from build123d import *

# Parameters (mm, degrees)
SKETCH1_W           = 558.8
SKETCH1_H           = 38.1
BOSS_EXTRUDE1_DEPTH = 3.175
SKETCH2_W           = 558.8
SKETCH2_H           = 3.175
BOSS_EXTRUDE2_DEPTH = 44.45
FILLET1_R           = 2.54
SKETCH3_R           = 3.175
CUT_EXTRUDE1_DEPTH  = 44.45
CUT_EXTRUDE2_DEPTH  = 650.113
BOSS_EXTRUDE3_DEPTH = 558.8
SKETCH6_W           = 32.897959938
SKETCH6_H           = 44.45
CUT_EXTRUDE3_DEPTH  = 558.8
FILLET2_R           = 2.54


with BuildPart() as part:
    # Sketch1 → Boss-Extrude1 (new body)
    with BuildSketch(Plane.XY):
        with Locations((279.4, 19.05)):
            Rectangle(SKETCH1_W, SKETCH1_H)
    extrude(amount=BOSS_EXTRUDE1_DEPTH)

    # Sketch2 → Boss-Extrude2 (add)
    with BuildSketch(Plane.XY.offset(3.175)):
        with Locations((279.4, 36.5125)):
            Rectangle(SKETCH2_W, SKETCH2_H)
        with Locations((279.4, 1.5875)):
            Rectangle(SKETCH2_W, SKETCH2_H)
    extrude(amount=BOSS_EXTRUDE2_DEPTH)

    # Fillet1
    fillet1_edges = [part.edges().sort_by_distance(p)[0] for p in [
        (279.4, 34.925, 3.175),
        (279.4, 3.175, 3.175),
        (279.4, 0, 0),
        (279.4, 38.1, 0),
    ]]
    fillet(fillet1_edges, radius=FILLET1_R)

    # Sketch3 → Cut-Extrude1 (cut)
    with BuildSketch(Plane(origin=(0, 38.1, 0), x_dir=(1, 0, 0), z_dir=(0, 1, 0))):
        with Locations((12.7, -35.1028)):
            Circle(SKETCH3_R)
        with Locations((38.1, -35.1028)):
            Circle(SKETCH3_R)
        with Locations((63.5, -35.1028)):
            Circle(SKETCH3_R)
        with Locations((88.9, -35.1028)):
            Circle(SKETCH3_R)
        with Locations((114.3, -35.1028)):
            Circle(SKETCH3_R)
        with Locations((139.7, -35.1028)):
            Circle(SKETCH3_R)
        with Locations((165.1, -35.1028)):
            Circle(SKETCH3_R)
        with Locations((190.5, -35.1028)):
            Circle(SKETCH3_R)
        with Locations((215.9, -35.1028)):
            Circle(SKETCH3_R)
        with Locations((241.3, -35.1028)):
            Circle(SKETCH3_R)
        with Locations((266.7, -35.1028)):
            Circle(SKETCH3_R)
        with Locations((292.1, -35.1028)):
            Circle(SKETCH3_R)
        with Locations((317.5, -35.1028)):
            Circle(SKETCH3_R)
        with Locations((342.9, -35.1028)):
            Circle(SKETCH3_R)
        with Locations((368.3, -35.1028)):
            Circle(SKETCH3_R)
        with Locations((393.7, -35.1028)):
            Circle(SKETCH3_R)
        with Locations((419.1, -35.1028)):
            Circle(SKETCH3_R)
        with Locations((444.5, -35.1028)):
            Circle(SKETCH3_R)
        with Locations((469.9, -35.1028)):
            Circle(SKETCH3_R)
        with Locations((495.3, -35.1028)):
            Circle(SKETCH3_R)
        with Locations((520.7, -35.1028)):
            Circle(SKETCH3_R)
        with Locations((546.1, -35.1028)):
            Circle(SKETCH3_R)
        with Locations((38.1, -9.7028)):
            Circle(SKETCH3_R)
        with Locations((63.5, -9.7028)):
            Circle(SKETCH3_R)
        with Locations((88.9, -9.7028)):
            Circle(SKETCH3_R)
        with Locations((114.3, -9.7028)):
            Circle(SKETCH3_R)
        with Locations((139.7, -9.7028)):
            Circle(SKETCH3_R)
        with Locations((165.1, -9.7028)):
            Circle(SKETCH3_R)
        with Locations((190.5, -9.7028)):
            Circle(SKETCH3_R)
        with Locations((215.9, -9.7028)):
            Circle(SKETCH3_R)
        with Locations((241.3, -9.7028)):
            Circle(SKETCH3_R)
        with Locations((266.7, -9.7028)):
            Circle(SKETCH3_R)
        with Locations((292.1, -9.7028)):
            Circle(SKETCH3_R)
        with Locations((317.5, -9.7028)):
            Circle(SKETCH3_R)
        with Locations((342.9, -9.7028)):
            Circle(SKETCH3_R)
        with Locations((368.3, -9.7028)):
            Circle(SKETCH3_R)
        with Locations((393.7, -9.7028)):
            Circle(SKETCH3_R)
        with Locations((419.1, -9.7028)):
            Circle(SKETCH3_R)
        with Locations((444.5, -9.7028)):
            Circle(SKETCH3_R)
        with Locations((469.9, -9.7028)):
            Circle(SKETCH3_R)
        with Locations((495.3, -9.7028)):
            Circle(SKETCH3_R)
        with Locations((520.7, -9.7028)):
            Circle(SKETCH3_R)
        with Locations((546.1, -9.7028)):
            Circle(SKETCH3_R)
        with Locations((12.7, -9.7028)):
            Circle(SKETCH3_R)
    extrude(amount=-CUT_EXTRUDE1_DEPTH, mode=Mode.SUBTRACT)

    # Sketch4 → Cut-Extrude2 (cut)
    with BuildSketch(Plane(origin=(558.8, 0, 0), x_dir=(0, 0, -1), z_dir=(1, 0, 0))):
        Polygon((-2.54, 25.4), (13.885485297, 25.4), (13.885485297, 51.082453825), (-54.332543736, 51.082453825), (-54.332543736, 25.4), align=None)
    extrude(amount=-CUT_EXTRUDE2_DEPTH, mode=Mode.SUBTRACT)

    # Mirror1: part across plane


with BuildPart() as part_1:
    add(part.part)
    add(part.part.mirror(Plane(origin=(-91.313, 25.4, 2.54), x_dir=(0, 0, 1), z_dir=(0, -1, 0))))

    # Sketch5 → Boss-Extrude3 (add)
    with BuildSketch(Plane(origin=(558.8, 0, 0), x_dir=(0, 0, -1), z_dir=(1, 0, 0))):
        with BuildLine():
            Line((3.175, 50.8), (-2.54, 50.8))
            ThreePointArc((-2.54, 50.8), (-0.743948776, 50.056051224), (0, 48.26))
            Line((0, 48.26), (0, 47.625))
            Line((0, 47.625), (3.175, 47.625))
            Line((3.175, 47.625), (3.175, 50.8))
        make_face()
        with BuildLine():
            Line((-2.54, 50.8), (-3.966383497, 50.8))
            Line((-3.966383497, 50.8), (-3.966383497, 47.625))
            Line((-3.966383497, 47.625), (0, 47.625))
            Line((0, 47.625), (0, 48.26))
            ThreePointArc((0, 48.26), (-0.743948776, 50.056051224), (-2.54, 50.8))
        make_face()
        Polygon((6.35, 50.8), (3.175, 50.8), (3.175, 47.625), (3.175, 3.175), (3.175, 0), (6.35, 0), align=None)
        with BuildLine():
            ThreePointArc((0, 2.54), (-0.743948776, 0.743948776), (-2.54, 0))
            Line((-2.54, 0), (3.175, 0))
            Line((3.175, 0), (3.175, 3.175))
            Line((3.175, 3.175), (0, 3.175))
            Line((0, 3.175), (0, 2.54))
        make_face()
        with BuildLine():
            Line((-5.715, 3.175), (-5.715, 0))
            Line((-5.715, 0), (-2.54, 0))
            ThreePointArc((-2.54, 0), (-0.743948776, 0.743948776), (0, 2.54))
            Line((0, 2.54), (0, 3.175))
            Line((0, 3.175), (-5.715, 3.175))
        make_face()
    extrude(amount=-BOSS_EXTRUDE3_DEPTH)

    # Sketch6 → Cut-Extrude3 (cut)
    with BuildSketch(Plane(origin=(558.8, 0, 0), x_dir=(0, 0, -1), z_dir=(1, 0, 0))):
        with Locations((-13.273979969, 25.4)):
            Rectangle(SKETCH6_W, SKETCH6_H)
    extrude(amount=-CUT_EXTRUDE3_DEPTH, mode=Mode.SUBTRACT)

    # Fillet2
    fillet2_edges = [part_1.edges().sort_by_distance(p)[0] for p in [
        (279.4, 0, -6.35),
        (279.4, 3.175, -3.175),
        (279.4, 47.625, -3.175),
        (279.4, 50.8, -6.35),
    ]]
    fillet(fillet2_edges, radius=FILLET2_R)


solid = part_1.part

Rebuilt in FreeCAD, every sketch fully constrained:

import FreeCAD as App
import Part
import Sketcher
Q = App.Units.Quantity


def edges_at(feature, points):
    """Names of the edges that pass closest to the given points."""
    edges = feature.Shape.Edges
    near = lambda p: min(range(len(edges)), key=lambda i: edges[i].distToShape(Part.Vertex(*p))[0])
    return sorted({f"Edge{near(p) + 1}" for p in points})

doc = App.newDocument("Part")
body = doc.addObject("PartDesign::Body", "Body")

sketch1 = body.newObject("Sketcher::SketchObject", "Sketch")
sketch1.AttachmentSupport = (doc.getObject("XY_Plane"), [""])
sketch1.MapMode = "FlatFace"
sketch1.addGeometry([
    Part.LineSegment(App.Vector(0, 38, 0), App.Vector(0, 0, 0)),
    Part.LineSegment(App.Vector(0, 0, 0), App.Vector(559, 0, 0)),
    Part.LineSegment(App.Vector(559, 0, 0), App.Vector(559, 38, 0)),
    Part.LineSegment(App.Vector(559, 38, 0), App.Vector(0, 38, 0)),
], False)
sketch1.addConstraint([
    Sketcher.Constraint("Coincident", 0, 2, 1, 1),
    Sketcher.Constraint("Coincident", 1, 2, 2, 1),
    Sketcher.Constraint("Coincident", 2, 2, 3, 1),
    Sketcher.Constraint("Coincident", 3, 2, 0, 1),
    Sketcher.Constraint("Vertical", 0),
    Sketcher.Constraint("Horizontal", 1),
    Sketcher.Constraint("Vertical", 2),
    Sketcher.Constraint("Horizontal", 3),
    Sketcher.Constraint("Coincident", 0, 2, -1, 1),
    Sketcher.Constraint("DistanceX", 1, 1, 1, 2, Q("22 in")),
    Sketcher.Constraint("DistanceY", 0, 2, 0, 1, Q("1.5 in")),
])
pad1 = body.newObject("PartDesign::Pad", "Pad")
pad1.Profile = sketch1
pad1.Length = Q("0.125 in")

sketch2 = body.newObject("Sketcher::SketchObject", "Sketch001")
sketch2.AttachmentSupport = (doc.getObject("XY_Plane"), [""])
sketch2.MapMode = "FlatFace"
sketch2.AttachmentOffset = App.Placement(App.Vector(0, 0, 0.125 * 25.4), App.Rotation())
sketch2.addGeometry([
    Part.LineSegment(App.Vector(0, 38.1, 0), App.Vector(0, 34.9, 0)),
    Part.LineSegment(App.Vector(0, 34.9, 0), App.Vector(558.8, 34.9, 0)),
    Part.LineSegment(App.Vector(558.8, 34.9, 0), App.Vector(558.8, 38.1, 0)),
    Part.LineSegment(App.Vector(558.8, 38.1, 0), App.Vector(0, 38.1, 0)),
    Part.LineSegment(App.Vector(0, 3.2, 0), App.Vector(0, 0, 0)),
    Part.LineSegment(App.Vector(0, 0, 0), App.Vector(558.8, 0, 0)),
    Part.LineSegment(App.Vector(558.8, 0, 0), App.Vector(558.8, 3.2, 0)),
    Part.LineSegment(App.Vector(558.8, 3.2, 0), App.Vector(0, 3.2, 0)),
], False)
sketch2.addConstraint([
    Sketcher.Constraint("Coincident", 0, 2, 1, 1),
    Sketcher.Constraint("Coincident", 1, 2, 2, 1),
    Sketcher.Constraint("Coincident", 2, 2, 3, 1),
    Sketcher.Constraint("Coincident", 3, 2, 0, 1),
    Sketcher.Constraint("Coincident", 4, 2, 5, 1),
    Sketcher.Constraint("Coincident", 5, 2, 6, 1),
    Sketcher.Constraint("Coincident", 6, 2, 7, 1),
    Sketcher.Constraint("Coincident", 7, 2, 4, 1),
    Sketcher.Constraint("Vertical", 0),
    Sketcher.Constraint("Horizontal", 1),
    Sketcher.Constraint("Vertical", 2),
    Sketcher.Constraint("Horizontal", 3),
    Sketcher.Constraint("Vertical", 4),
    Sketcher.Constraint("Horizontal", 5),
    Sketcher.Constraint("Vertical", 6),
    Sketcher.Constraint("Horizontal", 7),
    Sketcher.Constraint("Coincident", 4, 2, -1, 1),
    Sketcher.Constraint("PointOnObject", 0, 2, -2),
    Sketcher.Constraint("Vertical", 2, 2, 5, 2),
    Sketcher.Constraint("Equal", 2, 4),
    Sketcher.Constraint("DistanceX", 1, 1, 1, 2, Q("22 in")),
    Sketcher.Constraint("DistanceY", -1, 1, 2, 2, Q("1.5 in")),
    Sketcher.Constraint("DistanceY", 0, 2, 0, 1, Q("0.125 in")),
])
pad2 = body.newObject("PartDesign::Pad", "Pad001")
pad2.Profile = sketch2
pad2.Length = Q("1.75 in")
doc.recompute()

fillet = body.newObject("PartDesign::Fillet", "Fillet")
fillet.Base = (pad2, edges_at(pad2, [
    (279.4, 34.925, 3.175),
    (279.4, 3.175, 3.175),
    (279.4, 0, 0),
    (279.4, 38.1, 0),
]))
fillet.Radius = Q("0.1 in")

sketch3 = body.newObject("Sketcher::SketchObject", "Sketch002")
sketch3.AttachmentSupport = (doc.getObject("XZ_Plane"), [""])
sketch3.MapMode = "FlatFace"
sketch3.AttachmentOffset = App.Placement(App.Vector(0, 0, -1.5 * 25.4), App.Rotation())
sketch3.addGeometry([
    Part.Circle(App.Vector(12.7, 35.1, 0), App.Vector(0, 0, 1), 3.2),
    Part.Circle(App.Vector(38.1, 35.1, 0), App.Vector(0, 0, 1), 3.2),
    Part.Circle(App.Vector(63.5, 35.1, 0), App.Vector(0, 0, 1), 3.2),
    Part.Circle(App.Vector(88.9, 35.1, 0), App.Vector(0, 0, 1), 3.2),
    Part.Circle(App.Vector(114.3, 35.1, 0), App.Vector(0, 0, 1), 3.2),
    Part.Circle(App.Vector(139.7, 35.1, 0), App.Vector(0, 0, 1), 3.2),
    Part.Circle(App.Vector(165.1, 35.1, 0), App.Vector(0, 0, 1), 3.2),
    Part.Circle(App.Vector(190.5, 35.1, 0), App.Vector(0, 0, 1), 3.2),
    Part.Circle(App.Vector(215.9, 35.1, 0), App.Vector(0, 0, 1), 3.2),
    Part.Circle(App.Vector(241.3, 35.1, 0), App.Vector(0, 0, 1), 3.2),
    Part.Circle(App.Vector(266.7, 35.1, 0), App.Vector(0, 0, 1), 3.2),
    Part.Circle(App.Vector(292.1, 35.1, 0), App.Vector(0, 0, 1), 3.2),
    Part.Circle(App.Vector(317.5, 35.1, 0), App.Vector(0, 0, 1), 3.2),
    Part.Circle(App.Vector(342.9, 35.1, 0), App.Vector(0, 0, 1), 3.2),
    Part.Circle(App.Vector(368.3, 35.1, 0), App.Vector(0, 0, 1), 3.2),
    Part.Circle(App.Vector(393.7, 35.1, 0), App.Vector(0, 0, 1), 3.2),
    Part.Circle(App.Vector(419.1, 35.1, 0), App.Vector(0, 0, 1), 3.2),
    Part.Circle(App.Vector(444.5, 35.1, 0), App.Vector(0, 0, 1), 3.2),
    Part.Circle(App.Vector(469.9, 35.1, 0), App.Vector(0, 0, 1), 3.2),
    Part.Circle(App.Vector(495.3, 35.1, 0), App.Vector(0, 0, 1), 3.2),
    Part.Circle(App.Vector(520.7, 35.1, 0), App.Vector(0, 0, 1), 3.2),
    Part.Circle(App.Vector(546.1, 35.1, 0), App.Vector(0, 0, 1), 3.2),
    Part.Circle(App.Vector(38.1, 9.7, 0), App.Vector(0, 0, 1), 3.2),
    Part.Circle(App.Vector(63.5, 9.7, 0), App.Vector(0, 0, 1), 3.2),
    Part.Circle(App.Vector(88.9, 9.7, 0), App.Vector(0, 0, 1), 3.2),
    Part.Circle(App.Vector(114.3, 9.7, 0), App.Vector(0, 0, 1), 3.2),
    Part.Circle(App.Vector(139.7, 9.7, 0), App.Vector(0, 0, 1), 3.2),
    Part.Circle(App.Vector(165.1, 9.7, 0), App.Vector(0, 0, 1), 3.2),
    Part.Circle(App.Vector(190.5, 9.7, 0), App.Vector(0, 0, 1), 3.2),
    Part.Circle(App.Vector(215.9, 9.7, 0), App.Vector(0, 0, 1), 3.2),
    Part.Circle(App.Vector(241.3, 9.7, 0), App.Vector(0, 0, 1), 3.2),
    Part.Circle(App.Vector(266.7, 9.7, 0), App.Vector(0, 0, 1), 3.2),
    Part.Circle(App.Vector(292.1, 9.7, 0), App.Vector(0, 0, 1), 3.2),
    Part.Circle(App.Vector(317.5, 9.7, 0), App.Vector(0, 0, 1), 3.2),
    Part.Circle(App.Vector(342.9, 9.7, 0), App.Vector(0, 0, 1), 3.2),
    Part.Circle(App.Vector(368.3, 9.7, 0), App.Vector(0, 0, 1), 3.2),
    Part.Circle(App.Vector(393.7, 9.7, 0), App.Vector(0, 0, 1), 3.2),
    Part.Circle(App.Vector(419.1, 9.7, 0), App.Vector(0, 0, 1), 3.2),
    Part.Circle(App.Vector(444.5, 9.7, 0), App.Vector(0, 0, 1), 3.2),
    Part.Circle(App.Vector(469.9, 9.7, 0), App.Vector(0, 0, 1), 3.2),
    Part.Circle(App.Vector(495.3, 9.7, 0), App.Vector(0, 0, 1), 3.2),
    Part.Circle(App.Vector(520.7, 9.7, 0), App.Vector(0, 0, 1), 3.2),
    Part.Circle(App.Vector(546.1, 9.7, 0), App.Vector(0, 0, 1), 3.2),
    Part.Circle(App.Vector(12.7, 9.7, 0), App.Vector(0, 0, 1), 3.2),
], False)
sketch3.addConstraint([
    Sketcher.Constraint("Equal", 0, 1),
    Sketcher.Constraint("Equal", 1, 2),
    Sketcher.Constraint("Equal", 2, 3),
    Sketcher.Constraint("Equal", 3, 4),
    Sketcher.Constraint("Equal", 4, 5),
    Sketcher.Constraint("Equal", 5, 6),
    Sketcher.Constraint("Equal", 6, 7),
    Sketcher.Constraint("Equal", 7, 8),
    Sketcher.Constraint("Equal", 8, 9),
    Sketcher.Constraint("Equal", 9, 10),
    Sketcher.Constraint("Equal", 10, 11),
    Sketcher.Constraint("Equal", 11, 12),
    Sketcher.Constraint("Equal", 12, 13),
    Sketcher.Constraint("Equal", 13, 14),
    Sketcher.Constraint("Equal", 14, 15),
    Sketcher.Constraint("Equal", 15, 16),
    Sketcher.Constraint("Equal", 16, 17),
    Sketcher.Constraint("Equal", 17, 18),
    Sketcher.Constraint("Equal", 18, 19),
    Sketcher.Constraint("Equal", 19, 20),
    Sketcher.Constraint("Equal", 20, 21),
    Sketcher.Constraint("Equal", 21, 22),
    Sketcher.Constraint("Equal", 22, 23),
    Sketcher.Constraint("Equal", 23, 24),
    Sketcher.Constraint("Equal", 24, 25),
    Sketcher.Constraint("Equal", 25, 26),
    Sketcher.Constraint("Equal", 26, 27),
    Sketcher.Constraint("Equal", 27, 28),
    Sketcher.Constraint("Equal", 28, 29),
    Sketcher.Constraint("Equal", 29, 30),
    Sketcher.Constraint("Equal", 30, 31),
    Sketcher.Constraint("Equal", 31, 32),
    Sketcher.Constraint("Equal", 32, 33),
    Sketcher.Constraint("Equal", 33, 34),
    Sketcher.Constraint("Equal", 34, 35),
    Sketcher.Constraint("Equal", 35, 36),
    Sketcher.Constraint("Equal", 36, 37),
    Sketcher.Constraint("Equal", 37, 38),
    Sketcher.Constraint("Equal", 38, 39),
    Sketcher.Constraint("Equal", 39, 40),
    Sketcher.Constraint("Equal", 40, 41),
    Sketcher.Constraint("Equal", 41, 42),
    Sketcher.Constraint("Equal", 42, 43),
    Sketcher.Constraint("Horizontal", 0, 3, 1, 3),
    Sketcher.Constraint("Horizontal", 1, 3, 2, 3),
    Sketcher.Constraint("Horizontal", 2, 3, 3, 3),
    Sketcher.Constraint("Horizontal", 3, 3, 4, 3),
    Sketcher.Constraint("Horizontal", 4, 3, 5, 3),
    Sketcher.Constraint("Horizontal", 5, 3, 6, 3),
    Sketcher.Constraint("Horizontal", 6, 3, 7, 3),
    Sketcher.Constraint("Horizontal", 7, 3, 8, 3),
    Sketcher.Constraint("Horizontal", 8, 3, 9, 3),
    Sketcher.Constraint("Horizontal", 9, 3, 10, 3),
    Sketcher.Constraint("Horizontal", 10, 3, 11, 3),
    Sketcher.Constraint("Horizontal", 11, 3, 12, 3),
    Sketcher.Constraint("Horizontal", 12, 3, 13, 3),
    Sketcher.Constraint("Horizontal", 13, 3, 14, 3),
    Sketcher.Constraint("Horizontal", 14, 3, 15, 3),
    Sketcher.Constraint("Horizontal", 15, 3, 16, 3),
    Sketcher.Constraint("Horizontal", 16, 3, 17, 3),
    Sketcher.Constraint("Horizontal", 17, 3, 18, 3),
    Sketcher.Constraint("Horizontal", 18, 3, 19, 3),
    Sketcher.Constraint("Horizontal", 19, 3, 20, 3),
    Sketcher.Constraint("Horizontal", 20, 3, 21, 3),
    Sketcher.Constraint("Horizontal", 22, 3, 23, 3),
    Sketcher.Constraint("Horizontal", 23, 3, 24, 3),
    Sketcher.Constraint("Horizontal", 24, 3, 25, 3),
    Sketcher.Constraint("Horizontal", 25, 3, 26, 3),
    Sketcher.Constraint("Horizontal", 26, 3, 27, 3),
    Sketcher.Constraint("Horizontal", 27, 3, 28, 3),
    Sketcher.Constraint("Horizontal", 28, 3, 29, 3),
    Sketcher.Constraint("Horizontal", 29, 3, 30, 3),
    Sketcher.Constraint("Horizontal", 30, 3, 31, 3),
    Sketcher.Constraint("Horizontal", 31, 3, 32, 3),
    Sketcher.Constraint("Horizontal", 32, 3, 33, 3),
    Sketcher.Constraint("Horizontal", 33, 3, 34, 3),
    Sketcher.Constraint("Horizontal", 34, 3, 35, 3),
    Sketcher.Constraint("Horizontal", 35, 3, 36, 3),
    Sketcher.Constraint("Horizontal", 36, 3, 37, 3),
    Sketcher.Constraint("Horizontal", 37, 3, 38, 3),
    Sketcher.Constraint("Horizontal", 38, 3, 39, 3),
    Sketcher.Constraint("Horizontal", 39, 3, 40, 3),
    Sketcher.Constraint("Horizontal", 40, 3, 41, 3),
    Sketcher.Constraint("Horizontal", 41, 3, 42, 3),
    Sketcher.Constraint("Horizontal", 42, 3, 43, 3),
    Sketcher.Constraint("Vertical", 1, 3, 22, 3),
    Sketcher.Constraint("Vertical", 2, 3, 23, 3),
    Sketcher.Constraint("Vertical", 3, 3, 24, 3),
    Sketcher.Constraint("Vertical", 4, 3, 25, 3),
    Sketcher.Constraint("Vertical", 5, 3, 26, 3),
    Sketcher.Constraint("Vertical", 6, 3, 27, 3),
    Sketcher.Constraint("Vertical", 7, 3, 28, 3),
    Sketcher.Constraint("Vertical", 8, 3, 29, 3),
    Sketcher.Constraint("Vertical", 9, 3, 30, 3),
    Sketcher.Constraint("Vertical", 10, 3, 31, 3),
    Sketcher.Constraint("Vertical", 11, 3, 32, 3),
    Sketcher.Constraint("Vertical", 12, 3, 33, 3),
    Sketcher.Constraint("Vertical", 13, 3, 34, 3),
    Sketcher.Constraint("Vertical", 14, 3, 35, 3),
    Sketcher.Constraint("Vertical", 15, 3, 36, 3),
    Sketcher.Constraint("Vertical", 16, 3, 37, 3),
    Sketcher.Constraint("Vertical", 17, 3, 38, 3),
    Sketcher.Constraint("Vertical", 18, 3, 39, 3),
    Sketcher.Constraint("Vertical", 19, 3, 40, 3),
    Sketcher.Constraint("Vertical", 20, 3, 41, 3),
    Sketcher.Constraint("Vertical", 21, 3, 42, 3),
    Sketcher.Constraint("Vertical", 0, 3, 43, 3),
    Sketcher.Constraint("Diameter", 0, Q("0.25 in")),
    Sketcher.Constraint("DistanceX", 0, 3, 1, 3, Q("1 in")),
    Sketcher.Constraint("DistanceX", 1, 3, 2, 3, Q("1 in")),
    Sketcher.Constraint("DistanceX", 2, 3, 3, 3, Q("1 in")),
    Sketcher.Constraint("DistanceX", 3, 3, 4, 3, Q("1 in")),
    Sketcher.Constraint("DistanceX", 4, 3, 5, 3, Q("1 in")),
    Sketcher.Constraint("DistanceX", 5, 3, 6, 3, Q("1 in")),
    Sketcher.Constraint("DistanceX", 6, 3, 7, 3, Q("1 in")),
    Sketcher.Constraint("DistanceX", 7, 3, 8, 3, Q("1 in")),
    Sketcher.Constraint("DistanceX", 8, 3, 9, 3, Q("1 in")),
    Sketcher.Constraint("DistanceX", 9, 3, 10, 3, Q("1 in")),
    Sketcher.Constraint("DistanceX", 10, 3, 11, 3, Q("1 in")),
    Sketcher.Constraint("DistanceX", 11, 3, 12, 3, Q("1 in")),
    Sketcher.Constraint("DistanceX", 12, 3, 13, 3, Q("1 in")),
    Sketcher.Constraint("DistanceX", 13, 3, 14, 3, Q("1 in")),
    Sketcher.Constraint("DistanceX", 14, 3, 15, 3, Q("1 in")),
    Sketcher.Constraint("DistanceX", 15, 3, 16, 3, Q("1 in")),
    Sketcher.Constraint("DistanceX", 16, 3, 17, 3, Q("1 in")),
    Sketcher.Constraint("DistanceX", 17, 3, 18, 3, Q("1 in")),
    Sketcher.Constraint("DistanceX", 18, 3, 19, 3, Q("1 in")),
    Sketcher.Constraint("DistanceX", 19, 3, 20, 3, Q("1 in")),
    Sketcher.Constraint("DistanceX", 20, 3, 21, 3, Q("1 in")),
    Sketcher.Constraint("DistanceY", 22, 3, 1, 3, Q("1 in")),
    Sketcher.Constraint("DistanceX", -1, 1, 0, 3, Q("0.5 in")),
    Sketcher.Constraint("DistanceY", -1, 1, 0, 3, Q("1.382 in")),
])
pocket1 = body.newObject("PartDesign::Pocket", "Pocket")
pocket1.Profile = sketch3
pocket1.Length = Q("1.75 in")
pocket1.Reversed = True

sketch4 = body.newObject("Sketcher::SketchObject", "Sketch003")
sketch4.AttachmentSupport = (doc.getObject("YZ_Plane"), [""])
sketch4.MapMode = "FlatFace"
sketch4.AttachmentOffset = App.Placement(App.Vector(0, 0, 22 * 25.4), App.Rotation())
sketch4.addGeometry([
    Part.LineSegment(App.Vector(25, -14, 0), App.Vector(51, -14, 0)),
    Part.LineSegment(App.Vector(51, -14, 0), App.Vector(51, 54, 0)),
    Part.LineSegment(App.Vector(51, 54, 0), App.Vector(25, 54, 0)),
    Part.LineSegment(App.Vector(25, 54, 0), App.Vector(25, -14, 0)),
], False)
sketch4.addConstraint([
    Sketcher.Constraint("Coincident", 0, 2, 1, 1),
    Sketcher.Constraint("Coincident", 1, 2, 2, 1),
    Sketcher.Constraint("Coincident", 2, 2, 3, 1),
    Sketcher.Constraint("Coincident", 3, 2, 0, 1),
    Sketcher.Constraint("Horizontal", 0),
    Sketcher.Constraint("Vertical", 1),
    Sketcher.Constraint("Horizontal", 2),
    Sketcher.Constraint("Vertical", 3),
    Sketcher.Constraint("DistanceX", -1, 1, 2, 2, Q("1 in")),
    Sketcher.Constraint("DistanceY", 1, 1, 1, 2, 68.218029),
    Sketcher.Constraint("DistanceX", 0, 1, 0, 2, 25.682454),
    Sketcher.Constraint("DistanceY", 0, 2, -1, 1, 13.885485),
])
pocket2 = body.newObject("PartDesign::Pocket", "Pocket001")
pocket2.Profile = sketch4
pocket2.Length = Q("25.595 in")
body2 = doc.addObject("PartDesign::Body", "Body001")
doc.recompute()

body2.BaseFeature = body
doc.recompute()

mirroring = doc.addObject("Part::Mirroring", "Mirroring")
mirroring.Source = body
mirroring.Base = App.Vector(-91.313, 25.4, 2.54)
mirroring.Normal = App.Vector(0, -1, 0)
body3 = doc.addObject("PartDesign::Body", "Body002")
body3.BaseFeature = mirroring
boolean = body2.newObject("PartDesign::Boolean", "Boolean")
boolean.Type = "Fuse"
boolean.addObjects([body3])
doc.recompute()

sketch5 = body2.newObject("Sketcher::SketchObject", "Sketch004")
sketch5.AttachmentSupport = (doc.getObject("YZ_Plane001"), [""])
sketch5.MapMode = "FlatFace"
sketch5.AttachmentOffset = App.Placement(App.Vector(0, 0, 22 * 25.4), App.Rotation())
sketch5.addGeometry([
    Part.LineSegment(App.Vector(50.8, 4, 0), App.Vector(47.6, 4, 0)),
    Part.LineSegment(App.Vector(47.6, 4, 0), App.Vector(47.6, -3.2, 0)),
    Part.LineSegment(App.Vector(47.6, -3.2, 0), App.Vector(3.2, -3.2, 0)),
    Part.LineSegment(App.Vector(3.2, -3.2, 0), App.Vector(3.2, 5.7, 0)),
    Part.LineSegment(App.Vector(3.2, 5.7, 0), App.Vector(0, 5.7, 0)),
    Part.LineSegment(App.Vector(0, 5.7, 0), App.Vector(0, -6.3, 0)),
    Part.LineSegment(App.Vector(0, -6.3, 0), App.Vector(50.8, -6.3, 0)),
    Part.LineSegment(App.Vector(50.8, -6.3, 0), App.Vector(50.8, 4, 0)),
], False)
sketch5.addConstraint([
    Sketcher.Constraint("Coincident", 0, 2, 1, 1),
    Sketcher.Constraint("Coincident", 1, 2, 2, 1),
    Sketcher.Constraint("Coincident", 2, 2, 3, 1),
    Sketcher.Constraint("Coincident", 3, 2, 4, 1),
    Sketcher.Constraint("Coincident", 4, 2, 5, 1),
    Sketcher.Constraint("Coincident", 5, 2, 6, 1),
    Sketcher.Constraint("Coincident", 6, 2, 7, 1),
    Sketcher.Constraint("Coincident", 7, 2, 0, 1),
    Sketcher.Constraint("Horizontal", 0),
    Sketcher.Constraint("Vertical", 1),
    Sketcher.Constraint("Horizontal", 2),
    Sketcher.Constraint("Vertical", 3),
    Sketcher.Constraint("Horizontal", 4),
    Sketcher.Constraint("Vertical", 5),
    Sketcher.Constraint("Horizontal", 6),
    Sketcher.Constraint("Vertical", 7),
    Sketcher.Constraint("PointOnObject", 4, 2, -2),
    Sketcher.Constraint("Equal", 0, 4),
    Sketcher.Constraint("DistanceX", 6, 1, 6, 2, Q("2 in")),
    Sketcher.Constraint("DistanceX", 2, 2, 2, 1, Q("1.75 in")),
    Sketcher.Constraint("DistanceY", 3, 1, 3, 2, Q("0.35 in")),
    Sketcher.Constraint("DistanceY", 5, 2, 5, 1, Q("0.475 in")),
    Sketcher.Constraint("DistanceY", 5, 2, -1, 1, Q("0.25 in")),
    Sketcher.Constraint("DistanceY", 1, 2, 1, 1, 7.141383),
])
pad3 = body2.newObject("PartDesign::Pad", "Pad002")
pad3.Profile = sketch5
pad3.Length = Q("22 in")
pad3.Reversed = True

sketch6 = body2.newObject("Sketcher::SketchObject", "Sketch005")
sketch6.AttachmentSupport = (doc.getObject("YZ_Plane001"), [""])
sketch6.MapMode = "FlatFace"
sketch6.AttachmentOffset = App.Placement(App.Vector(0, 0, 22 * 25.4), App.Rotation())
sketch6.addGeometry([
    Part.LineSegment(App.Vector(48, 30, 0), App.Vector(3, 30, 0)),
    Part.LineSegment(App.Vector(3, 30, 0), App.Vector(3, -3, 0)),
    Part.LineSegment(App.Vector(3, -3, 0), App.Vector(48, -3, 0)),
    Part.LineSegment(App.Vector(48, -3, 0), App.Vector(48, 30, 0)),
], False)
sketch6.addConstraint([
    Sketcher.Constraint("Coincident", 0, 2, 1, 1),
    Sketcher.Constraint("Coincident", 1, 2, 2, 1),
    Sketcher.Constraint("Coincident", 2, 2, 3, 1),
    Sketcher.Constraint("Coincident", 3, 2, 0, 1),
    Sketcher.Constraint("Horizontal", 0),
    Sketcher.Constraint("Vertical", 1),
    Sketcher.Constraint("Horizontal", 2),
    Sketcher.Constraint("Vertical", 3),
    Sketcher.Constraint("DistanceX", 0, 2, 0, 1, Q("1.75 in")),
    Sketcher.Constraint("DistanceX", -1, 1, 0, 2, Q("0.125 in")),
    Sketcher.Constraint("DistanceY", 1, 2, -1, 1, Q("0.125 in")),
    Sketcher.Constraint("DistanceY", 1, 2, 1, 1, 32.89796),
])
pocket3 = body2.newObject("PartDesign::Pocket", "Pocket002")
pocket3.Profile = sketch6
pocket3.Length = Q("22 in")
doc.recompute()

fillet2 = body2.newObject("PartDesign::Fillet", "Fillet001")
fillet2.Base = (pocket3, edges_at(pocket3, [
    (279.4, 0, -6.35),
    (279.4, 3.175, -3.175),
    (279.4, 47.625, -3.175),
    (279.4, 50.8, -6.35),
]))
fillet2.Radius = Q("0.1 in")
mirroring.Visibility = False

doc.recompute()
